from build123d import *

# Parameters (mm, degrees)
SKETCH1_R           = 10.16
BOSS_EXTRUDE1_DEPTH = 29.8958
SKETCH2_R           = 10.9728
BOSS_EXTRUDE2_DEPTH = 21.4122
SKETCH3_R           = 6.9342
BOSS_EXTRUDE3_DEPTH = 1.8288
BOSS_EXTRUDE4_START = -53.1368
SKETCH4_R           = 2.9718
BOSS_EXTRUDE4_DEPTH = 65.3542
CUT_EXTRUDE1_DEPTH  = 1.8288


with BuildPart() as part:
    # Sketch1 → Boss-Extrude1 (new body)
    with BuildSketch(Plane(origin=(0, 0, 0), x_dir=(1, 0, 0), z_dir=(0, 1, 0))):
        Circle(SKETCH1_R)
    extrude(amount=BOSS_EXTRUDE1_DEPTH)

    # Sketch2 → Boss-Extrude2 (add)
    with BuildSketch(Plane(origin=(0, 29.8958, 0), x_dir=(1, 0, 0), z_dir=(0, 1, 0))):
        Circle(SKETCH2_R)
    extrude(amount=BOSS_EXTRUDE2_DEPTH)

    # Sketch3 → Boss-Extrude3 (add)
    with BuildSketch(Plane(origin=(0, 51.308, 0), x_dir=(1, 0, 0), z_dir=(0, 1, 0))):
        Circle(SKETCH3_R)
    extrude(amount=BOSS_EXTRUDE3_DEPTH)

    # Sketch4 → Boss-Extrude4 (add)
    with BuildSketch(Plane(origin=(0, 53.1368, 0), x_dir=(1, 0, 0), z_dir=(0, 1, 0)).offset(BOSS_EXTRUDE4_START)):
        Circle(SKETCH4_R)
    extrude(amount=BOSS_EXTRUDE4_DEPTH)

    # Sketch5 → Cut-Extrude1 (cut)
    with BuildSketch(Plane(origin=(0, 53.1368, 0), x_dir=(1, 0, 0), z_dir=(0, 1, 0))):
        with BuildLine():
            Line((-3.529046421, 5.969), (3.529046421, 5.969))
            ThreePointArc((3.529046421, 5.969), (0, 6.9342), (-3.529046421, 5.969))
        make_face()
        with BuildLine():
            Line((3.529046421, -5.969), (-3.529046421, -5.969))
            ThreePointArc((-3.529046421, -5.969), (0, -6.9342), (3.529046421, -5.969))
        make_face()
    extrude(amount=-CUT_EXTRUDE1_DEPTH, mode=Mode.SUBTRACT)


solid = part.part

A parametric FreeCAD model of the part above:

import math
import FreeCAD as App
import Part
import Sketcher

V = App.Vector
Q = App.Units.Quantity

doc = App.newDocument("Part")
body = doc.addObject("PartDesign::Body", "Body")

sketch1 = doc.addObject("Sketcher::SketchObject", "Sketch")
body.addObject(sketch1)
sketch1.AttachmentSupport = (doc.XZ_Plane, [""])
sketch1.MapMode = "FlatFace"
sketch1.addGeometry(Part.Circle(V(0, 0, 0), V(0, 0, 1), 10), False)
sketch1.addConstraint(Sketcher.Constraint("Coincident", 0, 3, -1, 1))
sketch1.addConstraint(Sketcher.Constraint("Diameter", 0, Q("0.8 in")))
pad1 = doc.addObject("PartDesign::Pad", "Pad")
body.addObject(pad1)
pad1.Profile = sketch1
pad1.Length = Q("1.177 in")
pad1.Reversed = True

sketch2 = doc.addObject("Sketcher::SketchObject", "Sketch001")
body.addObject(sketch2)
sketch2.AttachmentSupport = (doc.XZ_Plane, [""])
sketch2.MapMode = "FlatFace"
sketch2.AttachmentOffset = App.Placement(V(0, 0, -1.177 * 25.4), App.Rotation())
sketch2.addGeometry(Part.Circle(V(0, 0, 0), V(0, 0, 1), 11), False)
sketch2.addConstraint(Sketcher.Constraint("Coincident", 0, 3, -1, 1))
sketch2.addConstraint(Sketcher.Constraint("Diameter", 0, Q("0.864 in")))
pad2 = doc.addObject("PartDesign::Pad", "Pad001")
body.addObject(pad2)
pad2.Profile = sketch2
pad2.Length = Q("0.843 in")
pad2.Reversed = True

sketch3 = doc.addObject("Sketcher::SketchObject", "Sketch002")
body.addObject(sketch3)
sketch3.AttachmentSupport = (doc.XZ_Plane, [""])
sketch3.MapMode = "FlatFace"
sketch3.AttachmentOffset = App.Placement(V(0, 0, -2.02 * 25.4), App.Rotation())
sketch3.addGeometry(Part.Circle(V(0, 0, 0), V(0, 0, 1), 7), False)
sketch3.addConstraint(Sketcher.Constraint("Coincident", 0, 3, -1, 1))
sketch3.addConstraint(Sketcher.Constraint("Diameter", 0, Q("0.546 in")))
pad3 = doc.addObject("PartDesign::Pad", "Pad002")
body.addObject(pad3)
pad3.Profile = sketch3
pad3.Length = Q("0.072 in")
pad3.Reversed = True

sketch4 = doc.addObject("Sketcher::SketchObject", "Sketch003")
body.addObject(sketch4)
sketch4.AttachmentSupport = (doc.XZ_Plane, [""])
sketch4.MapMode = "FlatFace"
sketch4.addGeometry(Part.Circle(V(0, 0, 0), V(0, 0, 1), 3), False)
sketch4.addConstraint(Sketcher.Constraint("Coincident", 0, 3, -1, 1))
sketch4.addConstraint(Sketcher.Constraint("Diameter", 0, Q("0.234 in")))
pad4 = doc.addObject("PartDesign::Pad", "Pad003")
body.addObject(pad4)
pad4.Profile = sketch4
pad4.Length = Q("2.573 in")
pad4.Reversed = True

sketch5 = doc.addObject("Sketcher::SketchObject", "Sketch004")
body.addObject(sketch5)
sketch5.AttachmentSupport = (doc.XZ_Plane, [""])
sketch5.MapMode = "FlatFace"
sketch5.AttachmentOffset = App.Placement(V(0, 0, -2.092 * 25.4), App.Rotation())
sketch5.addGeometry(Part.LineSegment(V(-4, -6, 0), V(4, -6, 0)), False)
sketch5.addGeometry(Part.ArcOfCircle(Part.Circle(V(0, 0, 0), V(0, 0, 1), 7), math.radians(-121), math.radians(-59)), False)
sketch5.addGeometry(Part.LineSegment(V(4, 6, 0), V(-4, 6, 0)), False)
sketch5.addGeometry(Part.ArcOfCircle(Part.Circle(V(0, 0, 0), V(0, 0, 1), 7), math.radians(59), math.radians(121)), False)
sketch5.addConstraint(Sketcher.Constraint("Coincident", 0, 1, 1, 1))
sketch5.addConstraint(Sketcher.Constraint("Coincident", 1, 2, 0, 2))
sketch5.addConstraint(Sketcher.Constraint("Coincident", 2, 1, 3, 1))
sketch5.addConstraint(Sketcher.Constraint("Coincident", 3, 2, 2, 2))
sketch5.addConstraint(Sketcher.Constraint("Horizontal", 0))
sketch5.addConstraint(Sketcher.Constraint("Horizontal", 2))
sketch5.addConstraint(Sketcher.Constraint("Coincident", 1, 3, -1, 1))
sketch5.addConstraint(Sketcher.Constraint("Coincident", 3, 3, -1, 1))
sketch5.addConstraint(Sketcher.Constraint("Equal", 1, 3))
sketch5.addConstraint(Sketcher.Constraint("Vertical", 1, 2, 2, 1))
sketch5.addConstraint(Sketcher.Constraint("Radius", 1, Q("0.273 in")))
sketch5.addConstraint(Sketcher.Constraint("DistanceY", 1, 2, 2, 1, Q("0.47 in")))
pocket1 = doc.addObject("PartDesign::Pocket", "Pocket")
body.addObject(pocket1)
pocket1.Profile = sketch5
pocket1.Length = Q("0.072 in")
pocket1.Reversed = True

doc.recompute()
